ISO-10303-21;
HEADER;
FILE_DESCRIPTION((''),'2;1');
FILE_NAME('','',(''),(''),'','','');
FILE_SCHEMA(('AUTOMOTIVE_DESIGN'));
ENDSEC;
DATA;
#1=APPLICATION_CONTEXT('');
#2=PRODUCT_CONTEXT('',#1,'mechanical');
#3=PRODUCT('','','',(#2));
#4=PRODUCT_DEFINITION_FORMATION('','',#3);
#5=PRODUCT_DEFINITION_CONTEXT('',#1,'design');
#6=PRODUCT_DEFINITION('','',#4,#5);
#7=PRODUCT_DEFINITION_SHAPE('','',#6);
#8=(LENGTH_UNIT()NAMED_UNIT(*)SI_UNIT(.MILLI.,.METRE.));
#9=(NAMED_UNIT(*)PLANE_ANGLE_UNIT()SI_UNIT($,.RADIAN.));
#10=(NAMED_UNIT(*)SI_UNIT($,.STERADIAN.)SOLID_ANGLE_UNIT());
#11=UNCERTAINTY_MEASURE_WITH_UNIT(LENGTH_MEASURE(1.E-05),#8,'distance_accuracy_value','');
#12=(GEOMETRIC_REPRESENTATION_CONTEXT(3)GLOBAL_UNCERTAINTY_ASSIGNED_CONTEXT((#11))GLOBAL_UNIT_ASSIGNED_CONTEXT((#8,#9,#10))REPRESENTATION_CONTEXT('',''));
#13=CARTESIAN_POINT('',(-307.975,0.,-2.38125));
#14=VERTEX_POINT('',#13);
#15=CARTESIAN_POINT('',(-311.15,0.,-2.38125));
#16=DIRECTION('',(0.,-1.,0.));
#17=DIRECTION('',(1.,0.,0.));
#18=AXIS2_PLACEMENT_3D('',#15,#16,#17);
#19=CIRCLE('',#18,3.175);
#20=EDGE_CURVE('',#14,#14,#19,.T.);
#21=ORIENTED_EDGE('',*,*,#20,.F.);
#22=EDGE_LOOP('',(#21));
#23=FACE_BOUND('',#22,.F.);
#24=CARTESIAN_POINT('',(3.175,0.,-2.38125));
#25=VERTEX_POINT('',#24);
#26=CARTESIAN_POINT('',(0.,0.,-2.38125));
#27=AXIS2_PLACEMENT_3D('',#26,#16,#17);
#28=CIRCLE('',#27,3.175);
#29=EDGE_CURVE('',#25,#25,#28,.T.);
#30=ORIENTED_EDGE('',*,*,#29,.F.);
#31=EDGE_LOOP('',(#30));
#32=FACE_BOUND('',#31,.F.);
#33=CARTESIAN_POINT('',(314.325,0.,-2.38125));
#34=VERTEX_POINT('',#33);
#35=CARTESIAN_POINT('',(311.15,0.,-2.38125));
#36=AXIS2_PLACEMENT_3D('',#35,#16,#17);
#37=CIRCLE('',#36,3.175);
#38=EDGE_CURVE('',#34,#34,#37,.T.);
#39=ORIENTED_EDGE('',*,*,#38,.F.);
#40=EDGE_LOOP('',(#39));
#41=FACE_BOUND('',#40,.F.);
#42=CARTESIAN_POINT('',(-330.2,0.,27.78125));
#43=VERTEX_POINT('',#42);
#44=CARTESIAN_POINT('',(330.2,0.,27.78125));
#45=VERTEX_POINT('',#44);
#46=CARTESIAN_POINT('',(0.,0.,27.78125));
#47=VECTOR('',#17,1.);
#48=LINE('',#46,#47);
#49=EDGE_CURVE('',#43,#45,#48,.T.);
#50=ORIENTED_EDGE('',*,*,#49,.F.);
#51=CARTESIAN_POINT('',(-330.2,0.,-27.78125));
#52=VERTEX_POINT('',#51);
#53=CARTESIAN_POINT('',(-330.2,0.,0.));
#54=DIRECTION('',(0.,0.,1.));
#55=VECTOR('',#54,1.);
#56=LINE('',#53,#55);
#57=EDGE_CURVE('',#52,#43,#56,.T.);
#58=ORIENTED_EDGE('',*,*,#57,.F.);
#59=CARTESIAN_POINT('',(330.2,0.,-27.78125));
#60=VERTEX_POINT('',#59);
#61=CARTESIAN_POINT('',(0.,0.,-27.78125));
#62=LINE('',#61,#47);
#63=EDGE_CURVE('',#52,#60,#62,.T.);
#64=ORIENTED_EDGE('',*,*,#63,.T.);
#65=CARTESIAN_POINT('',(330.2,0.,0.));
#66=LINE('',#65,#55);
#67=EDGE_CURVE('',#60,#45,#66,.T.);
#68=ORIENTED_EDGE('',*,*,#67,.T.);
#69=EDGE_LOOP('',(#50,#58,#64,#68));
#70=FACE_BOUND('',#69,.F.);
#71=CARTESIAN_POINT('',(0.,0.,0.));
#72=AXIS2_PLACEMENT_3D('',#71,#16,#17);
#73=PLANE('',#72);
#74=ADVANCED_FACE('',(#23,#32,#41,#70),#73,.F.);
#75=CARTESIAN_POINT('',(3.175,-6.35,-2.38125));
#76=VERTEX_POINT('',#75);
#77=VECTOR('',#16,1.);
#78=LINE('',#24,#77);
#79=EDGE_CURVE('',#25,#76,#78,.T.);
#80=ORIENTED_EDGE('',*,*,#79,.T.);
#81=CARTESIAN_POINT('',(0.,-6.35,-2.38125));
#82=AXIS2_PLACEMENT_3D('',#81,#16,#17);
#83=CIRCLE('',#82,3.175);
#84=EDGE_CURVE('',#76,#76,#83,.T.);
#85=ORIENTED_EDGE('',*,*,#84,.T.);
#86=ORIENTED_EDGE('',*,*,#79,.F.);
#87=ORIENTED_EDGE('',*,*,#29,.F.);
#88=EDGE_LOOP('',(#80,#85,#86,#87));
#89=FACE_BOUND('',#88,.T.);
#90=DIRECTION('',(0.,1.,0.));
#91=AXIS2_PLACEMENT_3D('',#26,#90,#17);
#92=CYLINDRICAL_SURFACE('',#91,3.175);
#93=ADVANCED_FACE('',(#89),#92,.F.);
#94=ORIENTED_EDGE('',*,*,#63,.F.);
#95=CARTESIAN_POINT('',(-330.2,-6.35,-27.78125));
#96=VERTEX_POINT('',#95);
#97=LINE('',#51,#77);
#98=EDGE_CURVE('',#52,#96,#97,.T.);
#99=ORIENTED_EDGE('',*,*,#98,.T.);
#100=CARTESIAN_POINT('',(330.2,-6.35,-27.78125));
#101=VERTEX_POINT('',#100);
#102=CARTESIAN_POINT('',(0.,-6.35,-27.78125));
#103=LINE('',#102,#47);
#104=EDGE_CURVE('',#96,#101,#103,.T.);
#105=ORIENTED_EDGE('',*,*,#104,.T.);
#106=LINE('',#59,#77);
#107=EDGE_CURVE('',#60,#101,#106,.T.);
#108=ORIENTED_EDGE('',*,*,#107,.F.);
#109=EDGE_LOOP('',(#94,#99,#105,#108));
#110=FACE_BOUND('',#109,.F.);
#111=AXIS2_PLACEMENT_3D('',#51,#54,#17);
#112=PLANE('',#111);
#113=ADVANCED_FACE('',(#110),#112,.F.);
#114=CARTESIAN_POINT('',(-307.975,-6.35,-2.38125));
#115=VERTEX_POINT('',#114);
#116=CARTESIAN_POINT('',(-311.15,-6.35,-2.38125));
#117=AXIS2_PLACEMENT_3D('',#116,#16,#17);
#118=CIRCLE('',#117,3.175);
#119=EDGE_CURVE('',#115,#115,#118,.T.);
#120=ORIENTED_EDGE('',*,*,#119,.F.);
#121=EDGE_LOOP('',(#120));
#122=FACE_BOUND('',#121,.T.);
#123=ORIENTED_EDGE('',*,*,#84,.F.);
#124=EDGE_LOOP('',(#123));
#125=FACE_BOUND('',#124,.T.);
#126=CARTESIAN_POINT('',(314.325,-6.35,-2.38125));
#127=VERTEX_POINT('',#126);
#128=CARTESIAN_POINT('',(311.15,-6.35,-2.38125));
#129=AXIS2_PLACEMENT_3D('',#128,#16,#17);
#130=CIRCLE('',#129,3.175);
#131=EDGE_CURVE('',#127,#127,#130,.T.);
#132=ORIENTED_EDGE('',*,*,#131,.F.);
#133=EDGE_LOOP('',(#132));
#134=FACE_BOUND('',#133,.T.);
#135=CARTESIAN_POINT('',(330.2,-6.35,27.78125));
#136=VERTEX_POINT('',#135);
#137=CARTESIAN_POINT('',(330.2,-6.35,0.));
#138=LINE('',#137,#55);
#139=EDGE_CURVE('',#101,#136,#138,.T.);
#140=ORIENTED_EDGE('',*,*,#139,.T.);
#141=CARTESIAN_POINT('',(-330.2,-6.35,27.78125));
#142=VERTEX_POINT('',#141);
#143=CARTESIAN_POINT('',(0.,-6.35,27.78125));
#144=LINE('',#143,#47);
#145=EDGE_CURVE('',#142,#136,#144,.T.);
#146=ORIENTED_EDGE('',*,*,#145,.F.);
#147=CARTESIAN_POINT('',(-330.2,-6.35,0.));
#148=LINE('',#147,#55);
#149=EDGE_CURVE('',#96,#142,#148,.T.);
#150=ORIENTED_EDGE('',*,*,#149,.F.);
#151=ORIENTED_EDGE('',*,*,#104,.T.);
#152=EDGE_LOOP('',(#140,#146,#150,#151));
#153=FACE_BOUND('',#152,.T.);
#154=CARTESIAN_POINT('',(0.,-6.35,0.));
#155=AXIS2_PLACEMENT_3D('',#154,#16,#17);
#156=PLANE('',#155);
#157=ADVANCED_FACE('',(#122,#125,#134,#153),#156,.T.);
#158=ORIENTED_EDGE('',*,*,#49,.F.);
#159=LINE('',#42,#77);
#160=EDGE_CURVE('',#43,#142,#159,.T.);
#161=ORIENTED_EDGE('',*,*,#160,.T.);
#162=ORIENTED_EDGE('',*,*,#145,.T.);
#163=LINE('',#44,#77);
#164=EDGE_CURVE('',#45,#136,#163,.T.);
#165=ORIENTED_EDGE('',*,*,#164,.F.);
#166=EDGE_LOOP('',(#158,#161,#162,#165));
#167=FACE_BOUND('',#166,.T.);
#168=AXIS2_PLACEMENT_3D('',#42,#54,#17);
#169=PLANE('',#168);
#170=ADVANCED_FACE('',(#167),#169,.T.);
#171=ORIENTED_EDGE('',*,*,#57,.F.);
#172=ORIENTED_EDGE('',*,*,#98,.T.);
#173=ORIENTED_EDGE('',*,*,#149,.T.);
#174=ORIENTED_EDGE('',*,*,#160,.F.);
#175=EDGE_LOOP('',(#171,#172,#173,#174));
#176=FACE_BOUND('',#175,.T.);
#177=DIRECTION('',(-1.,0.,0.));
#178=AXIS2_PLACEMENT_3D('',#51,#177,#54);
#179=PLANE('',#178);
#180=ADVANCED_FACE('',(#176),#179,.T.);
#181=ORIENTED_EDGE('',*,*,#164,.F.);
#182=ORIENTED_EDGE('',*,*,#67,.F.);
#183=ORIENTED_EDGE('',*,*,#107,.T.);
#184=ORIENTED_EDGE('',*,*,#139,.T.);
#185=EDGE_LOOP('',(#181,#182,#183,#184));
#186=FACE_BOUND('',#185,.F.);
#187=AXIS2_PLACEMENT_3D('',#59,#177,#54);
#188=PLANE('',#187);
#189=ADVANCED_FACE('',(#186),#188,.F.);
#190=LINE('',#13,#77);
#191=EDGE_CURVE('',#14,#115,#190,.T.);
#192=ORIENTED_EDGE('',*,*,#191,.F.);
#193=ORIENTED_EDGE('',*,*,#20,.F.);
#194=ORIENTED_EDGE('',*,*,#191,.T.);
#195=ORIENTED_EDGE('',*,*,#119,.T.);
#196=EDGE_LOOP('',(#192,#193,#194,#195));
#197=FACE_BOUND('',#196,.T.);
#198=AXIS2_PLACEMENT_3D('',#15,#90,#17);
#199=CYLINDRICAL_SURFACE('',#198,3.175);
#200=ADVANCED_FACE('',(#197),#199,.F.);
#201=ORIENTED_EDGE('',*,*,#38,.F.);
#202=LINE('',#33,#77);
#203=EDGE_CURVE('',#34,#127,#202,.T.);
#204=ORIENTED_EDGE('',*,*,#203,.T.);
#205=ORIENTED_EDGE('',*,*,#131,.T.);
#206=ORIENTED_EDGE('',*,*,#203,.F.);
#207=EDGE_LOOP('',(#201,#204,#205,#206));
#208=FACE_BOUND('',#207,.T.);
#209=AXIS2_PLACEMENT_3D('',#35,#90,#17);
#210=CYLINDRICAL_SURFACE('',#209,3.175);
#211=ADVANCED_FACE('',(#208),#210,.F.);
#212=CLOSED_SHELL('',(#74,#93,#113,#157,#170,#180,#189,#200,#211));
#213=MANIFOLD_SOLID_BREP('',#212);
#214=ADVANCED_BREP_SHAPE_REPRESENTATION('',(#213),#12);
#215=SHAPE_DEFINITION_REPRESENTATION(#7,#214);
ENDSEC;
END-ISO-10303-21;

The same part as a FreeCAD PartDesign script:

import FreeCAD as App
import Part
import Sketcher

V = App.Vector
Q = App.Units.Quantity


def add_polygon(sketch, points):
    """Adds a closed chain of lines whose ends are joined by coincident constraints."""
    first, n = sketch.GeometryCount, len(points)
    for a, b in zip(points, points[1:] + points[:1]):
        sketch.addGeometry(Part.LineSegment(App.Vector(*a, 0), App.Vector(*b, 0)), False)
    for i in range(n):
        sketch.addConstraint(Sketcher.Constraint("Coincident", first + i, 2, first + (i + 1) % n, 1))

doc = App.newDocument("Part")
body = doc.addObject("PartDesign::Body", "Body")

# Sketch on XZ plane
sketch1 = body.newObject("Sketcher::SketchObject", "Sketch")
sketch1.AttachmentSupport = (doc.getObject("XZ_Plane"), [""])
sketch1.MapMode = "FlatFace"
add_polygon(sketch1, [(-330.2, 27.8), (-330.2, -27.8), (330.2, -27.8), (330.2, 27.8)])  # lines 0-3
sketch1.addGeometry(Part.Circle(V(0, -2.4, 0), V(0, 0, 1), 3.2), False)  # 4
sketch1.addGeometry(Part.Circle(V(-311.1, -2.4, 0), V(0, 0, 1), 3.2), False)  # 5
sketch1.addGeometry(Part.Circle(V(311.1, -2.4, 0), V(0, 0, 1), 3.2), False)  # 6
sketch1.addConstraint(Sketcher.Constraint("Vertical", 0))
sketch1.addConstraint(Sketcher.Constraint("Horizontal", 1))
sketch1.addConstraint(Sketcher.Constraint("Vertical", 2))
sketch1.addConstraint(Sketcher.Constraint("Horizontal", 3))
sketch1.addConstraint(Sketcher.Constraint("Equal", 4, 5))
sketch1.addConstraint(Sketcher.Constraint("Equal", 5, 6))
sketch1.addConstraint(Sketcher.Constraint("Symmetric", 0, 2, 2, 2, -1, 1))
sketch1.addConstraint(Sketcher.Constraint("Symmetric", 5, 3, 6, 3, -2))
sketch1.addConstraint(Sketcher.Constraint("PointOnObject", 4, 3, -2))
sketch1.addConstraint(Sketcher.Constraint("Horizontal", 4, 3, 5, 3))
sketch1.addConstraint(Sketcher.Constraint("Diameter", 4, Q("0.25 in")))
sketch1.addConstraint(Sketcher.Constraint("DistanceX", 1, 1, 1, 2, Q("26 in")))
sketch1.addConstraint(Sketcher.Constraint("DistanceY", 0, 2, 5, 3, Q("1 in")))
sketch1.addConstraint(Sketcher.Constraint("DistanceX", 5, 3, 6, 3, Q("24.5 in")))
sketch1.addConstraint(Sketcher.Constraint("DistanceY", 0, 2, 0, 1, Q("2.1875 in")))
pad1 = body.newObject("PartDesign::Pad", "Pad")
pad1.Profile = sketch1
pad1.Length = Q("0.25 in")

doc.recompute()
